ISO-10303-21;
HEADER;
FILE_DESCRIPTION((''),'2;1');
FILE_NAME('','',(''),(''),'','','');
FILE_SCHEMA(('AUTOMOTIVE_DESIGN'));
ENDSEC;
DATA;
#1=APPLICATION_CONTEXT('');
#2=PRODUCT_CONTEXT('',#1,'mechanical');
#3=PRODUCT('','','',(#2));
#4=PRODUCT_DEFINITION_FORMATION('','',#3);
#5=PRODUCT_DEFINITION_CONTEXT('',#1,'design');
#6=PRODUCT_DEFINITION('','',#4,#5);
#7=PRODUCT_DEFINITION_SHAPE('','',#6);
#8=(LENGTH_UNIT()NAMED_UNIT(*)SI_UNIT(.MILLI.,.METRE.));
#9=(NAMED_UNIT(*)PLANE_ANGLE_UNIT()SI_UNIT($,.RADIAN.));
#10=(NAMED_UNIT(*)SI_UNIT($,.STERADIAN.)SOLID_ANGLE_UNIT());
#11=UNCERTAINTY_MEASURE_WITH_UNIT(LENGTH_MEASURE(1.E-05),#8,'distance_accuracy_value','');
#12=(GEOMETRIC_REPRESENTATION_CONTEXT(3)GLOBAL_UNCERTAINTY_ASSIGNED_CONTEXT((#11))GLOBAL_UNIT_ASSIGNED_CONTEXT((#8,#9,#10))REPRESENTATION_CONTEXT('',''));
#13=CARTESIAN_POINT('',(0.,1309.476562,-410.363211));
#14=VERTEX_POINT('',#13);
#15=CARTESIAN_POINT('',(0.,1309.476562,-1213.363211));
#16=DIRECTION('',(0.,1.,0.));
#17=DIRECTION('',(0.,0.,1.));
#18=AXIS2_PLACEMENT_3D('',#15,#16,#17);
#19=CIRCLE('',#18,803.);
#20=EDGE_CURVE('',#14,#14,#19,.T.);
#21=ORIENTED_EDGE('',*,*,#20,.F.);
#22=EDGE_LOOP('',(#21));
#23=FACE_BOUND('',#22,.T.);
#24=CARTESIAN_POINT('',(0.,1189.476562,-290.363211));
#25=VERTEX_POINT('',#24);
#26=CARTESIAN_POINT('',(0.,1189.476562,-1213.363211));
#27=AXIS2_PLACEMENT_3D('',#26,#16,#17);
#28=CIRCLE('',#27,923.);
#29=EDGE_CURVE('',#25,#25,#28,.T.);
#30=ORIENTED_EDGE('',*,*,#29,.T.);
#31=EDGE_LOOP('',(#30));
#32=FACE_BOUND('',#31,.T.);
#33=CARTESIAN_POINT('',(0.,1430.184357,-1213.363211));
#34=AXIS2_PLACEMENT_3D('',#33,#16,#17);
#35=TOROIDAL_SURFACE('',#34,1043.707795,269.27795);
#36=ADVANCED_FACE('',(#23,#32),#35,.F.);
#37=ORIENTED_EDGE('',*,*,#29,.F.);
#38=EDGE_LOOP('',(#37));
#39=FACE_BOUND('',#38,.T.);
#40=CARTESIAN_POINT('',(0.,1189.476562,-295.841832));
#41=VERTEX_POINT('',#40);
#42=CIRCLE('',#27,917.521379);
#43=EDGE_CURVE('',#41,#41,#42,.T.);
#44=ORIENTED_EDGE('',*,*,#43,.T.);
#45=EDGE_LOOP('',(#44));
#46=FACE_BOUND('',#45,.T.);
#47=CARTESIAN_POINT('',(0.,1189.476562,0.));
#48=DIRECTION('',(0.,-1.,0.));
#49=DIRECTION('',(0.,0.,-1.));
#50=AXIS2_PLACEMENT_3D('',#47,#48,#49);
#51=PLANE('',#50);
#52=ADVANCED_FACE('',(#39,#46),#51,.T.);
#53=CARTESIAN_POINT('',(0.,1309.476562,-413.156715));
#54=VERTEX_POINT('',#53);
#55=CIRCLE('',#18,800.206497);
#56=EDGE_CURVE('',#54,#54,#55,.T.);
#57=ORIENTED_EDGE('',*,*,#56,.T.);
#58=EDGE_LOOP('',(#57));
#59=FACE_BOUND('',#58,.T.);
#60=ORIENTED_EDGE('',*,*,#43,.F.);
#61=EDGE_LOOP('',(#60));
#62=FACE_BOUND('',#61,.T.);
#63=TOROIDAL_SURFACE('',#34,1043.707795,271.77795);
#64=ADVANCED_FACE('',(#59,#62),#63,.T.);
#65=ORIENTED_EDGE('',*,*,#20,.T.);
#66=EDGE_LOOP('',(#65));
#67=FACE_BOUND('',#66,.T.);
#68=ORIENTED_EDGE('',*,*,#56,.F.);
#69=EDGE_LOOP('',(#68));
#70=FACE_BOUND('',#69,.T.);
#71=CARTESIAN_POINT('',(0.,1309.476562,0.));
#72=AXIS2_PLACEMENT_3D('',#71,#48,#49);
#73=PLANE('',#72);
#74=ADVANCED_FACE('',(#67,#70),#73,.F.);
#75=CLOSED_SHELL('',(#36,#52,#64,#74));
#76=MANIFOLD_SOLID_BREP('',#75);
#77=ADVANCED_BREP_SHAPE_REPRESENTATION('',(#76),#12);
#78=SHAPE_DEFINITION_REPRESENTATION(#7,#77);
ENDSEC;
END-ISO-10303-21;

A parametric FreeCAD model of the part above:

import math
import FreeCAD as App
import Part
import Sketcher
from FreeCAD import Vector

doc = App.newDocument("Part")
body = doc.addObject("PartDesign::Body", "Body")

sketch1 = body.newObject("Sketcher::SketchObject", "Sketch")
sketch1.AttachmentSupport = (doc.getObject("YZ_Plane"), [""])
sketch1.MapMode = "FlatFace"
sketch1.addGeometry(Part.LineSegment(Vector(1309.5, -2016.4, 0), Vector(1309.5, -2013.6, 0)), False)
sketch1.addGeometry(Part.ArcOfCircle(Part.Circle(Vector(1430.2, -2257.1, 0), Vector(0, 0, 1), 271.8), math.radians(116), math.radians(152)), False)
sketch1.addGeometry(Part.LineSegment(Vector(1189.5, -2130.9, 0), Vector(1189.5, -2136.4, 0)), False)
sketch1.addGeometry(Part.ArcOfCircle(Part.Circle(Vector(1430.2, -2257.1, 0), Vector(0, 0, 1), 269.3), math.radians(117), math.radians(153)), False)
sketch1.addGeometry(Part.LineSegment(Vector(1430.2, -1213.4, 0), Vector(1189.5, -1213.4, 0)), True)
sketch1.addConstraint(Sketcher.Constraint("Coincident", 0, 2, 1, 1))
sketch1.addConstraint(Sketcher.Constraint("Coincident", 1, 2, 2, 1))
sketch1.addConstraint(Sketcher.Constraint("Coincident", 2, 2, 3, 2))
sketch1.addConstraint(Sketcher.Constraint("Coincident", 3, 1, 0, 1))
sketch1.addConstraint(Sketcher.Constraint("Vertical", 0))
sketch1.addConstraint(Sketcher.Constraint("Vertical", 2))
sketch1.addConstraint(Sketcher.Constraint("Horizontal", 4))
sketch1.addConstraint(Sketcher.Constraint("Coincident", 3, 3, 1, 3))
sketch1.addConstraint(Sketcher.Constraint("Vertical", 3, 3, 4, 1))
sketch1.addConstraint(Sketcher.Constraint("Vertical", 2, 2, 4, 2))
sketch1.addConstraint(Sketcher.Constraint("DistanceX", 1, 2, 0, 2, 120.0))
sketch1.addConstraint(Sketcher.Constraint("DistanceY", 2, 2, 3, 1, 120.0))
sketch1.addConstraint(Sketcher.Constraint("DistanceY", 3, 1, 4, 1, 803.0))
sketch1.addConstraint(Sketcher.Constraint("Radius", 1, 271.77795))
sketch1.addConstraint(Sketcher.Constraint("Radius", 3, 269.27795))
sketch1.addConstraint(Sketcher.Constraint("DistanceX", -1, 1, 0, 2, 1309.476562))
sketch1.addConstraint(Sketcher.Constraint("DistanceY", 2, 2, -1, 1, 2136.363211))
revolution = body.newObject("PartDesign::Revolution", "Revolution")
revolution.Profile = sketch1
revolution.ReferenceAxis = (sketch1, ["Axis0"])
revolution.Angle = 360

doc.recompute()
